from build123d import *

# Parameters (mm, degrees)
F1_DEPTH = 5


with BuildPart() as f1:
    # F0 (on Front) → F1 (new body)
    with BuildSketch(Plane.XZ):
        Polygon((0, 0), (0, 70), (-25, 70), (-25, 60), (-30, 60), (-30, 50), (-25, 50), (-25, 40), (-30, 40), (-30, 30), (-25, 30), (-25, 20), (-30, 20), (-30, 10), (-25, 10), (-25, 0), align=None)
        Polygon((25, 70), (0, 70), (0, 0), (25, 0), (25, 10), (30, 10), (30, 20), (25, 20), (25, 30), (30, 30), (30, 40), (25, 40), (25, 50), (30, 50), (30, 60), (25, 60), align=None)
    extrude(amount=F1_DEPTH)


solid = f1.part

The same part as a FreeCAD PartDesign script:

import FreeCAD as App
import Part
import Sketcher
from FreeCAD import Vector

doc = App.newDocument("Part")
body = doc.addObject("PartDesign::Body", "Body")

sketch1 = body.newObject("Sketcher::SketchObject", "Sketch")
sketch1.AttachmentSupport = (doc.getObject("XZ_Plane"), [""])
sketch1.MapMode = "FlatFace"
sketch1.addGeometry([
    Part.LineSegment(Vector(-25, 70, 0), Vector(-25, 60, 0)),
    Part.LineSegment(Vector(-25, 60, 0), Vector(-30, 60, 0)),
    Part.LineSegment(Vector(-30, 60, 0), Vector(-30, 50, 0)),
    Part.LineSegment(Vector(-30, 50, 0), Vector(-25, 50, 0)),
    Part.LineSegment(Vector(-25, 50, 0), Vector(-25, 40, 0)),
    Part.LineSegment(Vector(-25, 40, 0), Vector(-30, 40, 0)),
    Part.LineSegment(Vector(-30, 40, 0), Vector(-30, 30, 0)),
    Part.LineSegment(Vector(-30, 30, 0), Vector(-25, 30, 0)),
    Part.LineSegment(Vector(-25, 30, 0), Vector(-25, 20, 0)),
    Part.LineSegment(Vector(-25, 20, 0), Vector(-30, 20, 0)),
    Part.LineSegment(Vector(-30, 20, 0), Vector(-30, 10, 0)),
    Part.LineSegment(Vector(-30, 10, 0), Vector(-25, 10, 0)),
    Part.LineSegment(Vector(-25, 10, 0), Vector(-25, 0, 0)),
    Part.LineSegment(Vector(-25, 0, 0), Vector(25, 0, 0)),
    Part.LineSegment(Vector(25, 0, 0), Vector(25, 10, 0)),
    Part.LineSegment(Vector(25, 10, 0), Vector(30, 10, 0)),
    Part.LineSegment(Vector(30, 10, 0), Vector(30, 20, 0)),
    Part.LineSegment(Vector(30, 20, 0), Vector(25, 20, 0)),
    Part.LineSegment(Vector(25, 20, 0), Vector(25, 30, 0)),
    Part.LineSegment(Vector(25, 30, 0), Vector(30, 30, 0)),
    Part.LineSegment(Vector(30, 30, 0), Vector(30, 40, 0)),
    Part.LineSegment(Vector(30, 40, 0), Vector(25, 40, 0)),
    Part.LineSegment(Vector(25, 40, 0), Vector(25, 50, 0)),
    Part.LineSegment(Vector(25, 50, 0), Vector(30, 50, 0)),
    Part.LineSegment(Vector(30, 50, 0), Vector(30, 60, 0)),
    Part.LineSegment(Vector(30, 60, 0), Vector(25, 60, 0)),
    Part.LineSegment(Vector(25, 60, 0), Vector(25, 70, 0)),
    Part.LineSegment(Vector(25, 70, 0), Vector(-25, 70, 0)),
], False)
sketch1.addConstraint([
    Sketcher.Constraint("Coincident", 0, 2, 1, 1),
    Sketcher.Constraint("Coincident", 1, 2, 2, 1),
    Sketcher.Constraint("Coincident", 2, 2, 3, 1),
    Sketcher.Constraint("Coincident", 3, 2, 4, 1),
    Sketcher.Constraint("Coincident", 4, 2, 5, 1),
    Sketcher.Constraint("Coincident", 5, 2, 6, 1),
    Sketcher.Constraint("Coincident", 6, 2, 7, 1),
    Sketcher.Constraint("Coincident", 7, 2, 8, 1),
    Sketcher.Constraint("Coincident", 8, 2, 9, 1),
    Sketcher.Constraint("Coincident", 9, 2, 10, 1),
    Sketcher.Constraint("Coincident", 10, 2, 11, 1),
    Sketcher.Constraint("Coincident", 11, 2, 12, 1),
    Sketcher.Constraint("Coincident", 12, 2, 13, 1),
    Sketcher.Constraint("Coincident", 13, 2, 14, 1),
    Sketcher.Constraint("Coincident", 14, 2, 15, 1),
    Sketcher.Constraint("Coincident", 15, 2, 16, 1),
    Sketcher.Constraint("Coincident", 16, 2, 17, 1),
    Sketcher.Constraint("Coincident", 17, 2, 18, 1),
    Sketcher.Constraint("Coincident", 18, 2, 19, 1),
    Sketcher.Constraint("Coincident", 19, 2, 20, 1),
    Sketcher.Constraint("Coincident", 20, 2, 21, 1),
    Sketcher.Constraint("Coincident", 21, 2, 22, 1),
    Sketcher.Constraint("Coincident", 22, 2, 23, 1),
    Sketcher.Constraint("Coincident", 23, 2, 24, 1),
    Sketcher.Constraint("Coincident", 24, 2, 25, 1),
    Sketcher.Constraint("Coincident", 25, 2, 26, 1),
    Sketcher.Constraint("Coincident", 26, 2, 27, 1),
    Sketcher.Constraint("Coincident", 27, 2, 0, 1),
    Sketcher.Constraint("Vertical", 0),
    Sketcher.Constraint("Horizontal", 1),
    Sketcher.Constraint("Vertical", 2),
    Sketcher.Constraint("Horizontal", 3),
    Sketcher.Constraint("Vertical", 4),
    Sketcher.Constraint("Horizontal", 5),
    Sketcher.Constraint("Vertical", 6),
    Sketcher.Constraint("Horizontal", 7),
    Sketcher.Constraint("Vertical", 8),
    Sketcher.Constraint("Horizontal", 9),
    Sketcher.Constraint("Vertical", 10),
    Sketcher.Constraint("Horizontal", 11),
    Sketcher.Constraint("Vertical", 12),
    Sketcher.Constraint("Horizontal", 13),
    Sketcher.Constraint("Vertical", 14),
    Sketcher.Constraint("Horizontal", 15),
    Sketcher.Constraint("Vertical", 16),
    Sketcher.Constraint("Horizontal", 17),
    Sketcher.Constraint("Vertical", 18),
    Sketcher.Constraint("Horizontal", 19),
    Sketcher.Constraint("Vertical", 20),
    Sketcher.Constraint("Horizontal", 21),
    Sketcher.Constraint("Vertical", 22),
    Sketcher.Constraint("Horizontal", 23),
    Sketcher.Constraint("Vertical", 24),
    Sketcher.Constraint("Horizontal", 25),
    Sketcher.Constraint("Vertical", 26),
    Sketcher.Constraint("Horizontal", 27),
    Sketcher.Constraint("Symmetric", 12, 2, 13, 2, -1, 1),
    Sketcher.Constraint("Symmetric", 10, 2, 15, 2, -2),
    Sketcher.Constraint("Symmetric", 8, 2, 17, 2, -2),
    Sketcher.Constraint("Symmetric", 6, 2, 19, 2, -2),
    Sketcher.Constraint("Symmetric", 4, 2, 21, 2, -2),
    Sketcher.Constraint("Symmetric", 2, 2, 23, 2, -2),
    Sketcher.Constraint("Symmetric", 0, 2, 25, 2, -2),
    Sketcher.Constraint("Vertical", 0, 2, 3, 2),
    Sketcher.Constraint("Vertical", 2, 2, 5, 2),
    Sketcher.Constraint("Vertical", 4, 2, 7, 2),
    Sketcher.Constraint("Vertical", 6, 2, 9, 2),
    Sketcher.Constraint("Vertical", 8, 2, 11, 2),
    Sketcher.Constraint("Equal", 0, 2),
    Sketcher.Constraint("Equal", 2, 4),
    Sketcher.Constraint("Equal", 4, 6),
    Sketcher.Constraint("Equal", 6, 8),
    Sketcher.Constraint("Equal", 8, 10),
    Sketcher.Constraint("Equal", 10, 12),
    Sketcher.Constraint("DistanceX", 1, 2, 1, 1, 5.0),
    Sketcher.Constraint("DistanceX", 13, 1, 13, 2, 50.0),
    Sketcher.Constraint("DistanceY", 0, 2, 0, 1, 10.0),
])
pad1 = body.newObject("PartDesign::Pad", "Pad")
pad1.Profile = sketch1
pad1.Length = 5

doc.recompute()
